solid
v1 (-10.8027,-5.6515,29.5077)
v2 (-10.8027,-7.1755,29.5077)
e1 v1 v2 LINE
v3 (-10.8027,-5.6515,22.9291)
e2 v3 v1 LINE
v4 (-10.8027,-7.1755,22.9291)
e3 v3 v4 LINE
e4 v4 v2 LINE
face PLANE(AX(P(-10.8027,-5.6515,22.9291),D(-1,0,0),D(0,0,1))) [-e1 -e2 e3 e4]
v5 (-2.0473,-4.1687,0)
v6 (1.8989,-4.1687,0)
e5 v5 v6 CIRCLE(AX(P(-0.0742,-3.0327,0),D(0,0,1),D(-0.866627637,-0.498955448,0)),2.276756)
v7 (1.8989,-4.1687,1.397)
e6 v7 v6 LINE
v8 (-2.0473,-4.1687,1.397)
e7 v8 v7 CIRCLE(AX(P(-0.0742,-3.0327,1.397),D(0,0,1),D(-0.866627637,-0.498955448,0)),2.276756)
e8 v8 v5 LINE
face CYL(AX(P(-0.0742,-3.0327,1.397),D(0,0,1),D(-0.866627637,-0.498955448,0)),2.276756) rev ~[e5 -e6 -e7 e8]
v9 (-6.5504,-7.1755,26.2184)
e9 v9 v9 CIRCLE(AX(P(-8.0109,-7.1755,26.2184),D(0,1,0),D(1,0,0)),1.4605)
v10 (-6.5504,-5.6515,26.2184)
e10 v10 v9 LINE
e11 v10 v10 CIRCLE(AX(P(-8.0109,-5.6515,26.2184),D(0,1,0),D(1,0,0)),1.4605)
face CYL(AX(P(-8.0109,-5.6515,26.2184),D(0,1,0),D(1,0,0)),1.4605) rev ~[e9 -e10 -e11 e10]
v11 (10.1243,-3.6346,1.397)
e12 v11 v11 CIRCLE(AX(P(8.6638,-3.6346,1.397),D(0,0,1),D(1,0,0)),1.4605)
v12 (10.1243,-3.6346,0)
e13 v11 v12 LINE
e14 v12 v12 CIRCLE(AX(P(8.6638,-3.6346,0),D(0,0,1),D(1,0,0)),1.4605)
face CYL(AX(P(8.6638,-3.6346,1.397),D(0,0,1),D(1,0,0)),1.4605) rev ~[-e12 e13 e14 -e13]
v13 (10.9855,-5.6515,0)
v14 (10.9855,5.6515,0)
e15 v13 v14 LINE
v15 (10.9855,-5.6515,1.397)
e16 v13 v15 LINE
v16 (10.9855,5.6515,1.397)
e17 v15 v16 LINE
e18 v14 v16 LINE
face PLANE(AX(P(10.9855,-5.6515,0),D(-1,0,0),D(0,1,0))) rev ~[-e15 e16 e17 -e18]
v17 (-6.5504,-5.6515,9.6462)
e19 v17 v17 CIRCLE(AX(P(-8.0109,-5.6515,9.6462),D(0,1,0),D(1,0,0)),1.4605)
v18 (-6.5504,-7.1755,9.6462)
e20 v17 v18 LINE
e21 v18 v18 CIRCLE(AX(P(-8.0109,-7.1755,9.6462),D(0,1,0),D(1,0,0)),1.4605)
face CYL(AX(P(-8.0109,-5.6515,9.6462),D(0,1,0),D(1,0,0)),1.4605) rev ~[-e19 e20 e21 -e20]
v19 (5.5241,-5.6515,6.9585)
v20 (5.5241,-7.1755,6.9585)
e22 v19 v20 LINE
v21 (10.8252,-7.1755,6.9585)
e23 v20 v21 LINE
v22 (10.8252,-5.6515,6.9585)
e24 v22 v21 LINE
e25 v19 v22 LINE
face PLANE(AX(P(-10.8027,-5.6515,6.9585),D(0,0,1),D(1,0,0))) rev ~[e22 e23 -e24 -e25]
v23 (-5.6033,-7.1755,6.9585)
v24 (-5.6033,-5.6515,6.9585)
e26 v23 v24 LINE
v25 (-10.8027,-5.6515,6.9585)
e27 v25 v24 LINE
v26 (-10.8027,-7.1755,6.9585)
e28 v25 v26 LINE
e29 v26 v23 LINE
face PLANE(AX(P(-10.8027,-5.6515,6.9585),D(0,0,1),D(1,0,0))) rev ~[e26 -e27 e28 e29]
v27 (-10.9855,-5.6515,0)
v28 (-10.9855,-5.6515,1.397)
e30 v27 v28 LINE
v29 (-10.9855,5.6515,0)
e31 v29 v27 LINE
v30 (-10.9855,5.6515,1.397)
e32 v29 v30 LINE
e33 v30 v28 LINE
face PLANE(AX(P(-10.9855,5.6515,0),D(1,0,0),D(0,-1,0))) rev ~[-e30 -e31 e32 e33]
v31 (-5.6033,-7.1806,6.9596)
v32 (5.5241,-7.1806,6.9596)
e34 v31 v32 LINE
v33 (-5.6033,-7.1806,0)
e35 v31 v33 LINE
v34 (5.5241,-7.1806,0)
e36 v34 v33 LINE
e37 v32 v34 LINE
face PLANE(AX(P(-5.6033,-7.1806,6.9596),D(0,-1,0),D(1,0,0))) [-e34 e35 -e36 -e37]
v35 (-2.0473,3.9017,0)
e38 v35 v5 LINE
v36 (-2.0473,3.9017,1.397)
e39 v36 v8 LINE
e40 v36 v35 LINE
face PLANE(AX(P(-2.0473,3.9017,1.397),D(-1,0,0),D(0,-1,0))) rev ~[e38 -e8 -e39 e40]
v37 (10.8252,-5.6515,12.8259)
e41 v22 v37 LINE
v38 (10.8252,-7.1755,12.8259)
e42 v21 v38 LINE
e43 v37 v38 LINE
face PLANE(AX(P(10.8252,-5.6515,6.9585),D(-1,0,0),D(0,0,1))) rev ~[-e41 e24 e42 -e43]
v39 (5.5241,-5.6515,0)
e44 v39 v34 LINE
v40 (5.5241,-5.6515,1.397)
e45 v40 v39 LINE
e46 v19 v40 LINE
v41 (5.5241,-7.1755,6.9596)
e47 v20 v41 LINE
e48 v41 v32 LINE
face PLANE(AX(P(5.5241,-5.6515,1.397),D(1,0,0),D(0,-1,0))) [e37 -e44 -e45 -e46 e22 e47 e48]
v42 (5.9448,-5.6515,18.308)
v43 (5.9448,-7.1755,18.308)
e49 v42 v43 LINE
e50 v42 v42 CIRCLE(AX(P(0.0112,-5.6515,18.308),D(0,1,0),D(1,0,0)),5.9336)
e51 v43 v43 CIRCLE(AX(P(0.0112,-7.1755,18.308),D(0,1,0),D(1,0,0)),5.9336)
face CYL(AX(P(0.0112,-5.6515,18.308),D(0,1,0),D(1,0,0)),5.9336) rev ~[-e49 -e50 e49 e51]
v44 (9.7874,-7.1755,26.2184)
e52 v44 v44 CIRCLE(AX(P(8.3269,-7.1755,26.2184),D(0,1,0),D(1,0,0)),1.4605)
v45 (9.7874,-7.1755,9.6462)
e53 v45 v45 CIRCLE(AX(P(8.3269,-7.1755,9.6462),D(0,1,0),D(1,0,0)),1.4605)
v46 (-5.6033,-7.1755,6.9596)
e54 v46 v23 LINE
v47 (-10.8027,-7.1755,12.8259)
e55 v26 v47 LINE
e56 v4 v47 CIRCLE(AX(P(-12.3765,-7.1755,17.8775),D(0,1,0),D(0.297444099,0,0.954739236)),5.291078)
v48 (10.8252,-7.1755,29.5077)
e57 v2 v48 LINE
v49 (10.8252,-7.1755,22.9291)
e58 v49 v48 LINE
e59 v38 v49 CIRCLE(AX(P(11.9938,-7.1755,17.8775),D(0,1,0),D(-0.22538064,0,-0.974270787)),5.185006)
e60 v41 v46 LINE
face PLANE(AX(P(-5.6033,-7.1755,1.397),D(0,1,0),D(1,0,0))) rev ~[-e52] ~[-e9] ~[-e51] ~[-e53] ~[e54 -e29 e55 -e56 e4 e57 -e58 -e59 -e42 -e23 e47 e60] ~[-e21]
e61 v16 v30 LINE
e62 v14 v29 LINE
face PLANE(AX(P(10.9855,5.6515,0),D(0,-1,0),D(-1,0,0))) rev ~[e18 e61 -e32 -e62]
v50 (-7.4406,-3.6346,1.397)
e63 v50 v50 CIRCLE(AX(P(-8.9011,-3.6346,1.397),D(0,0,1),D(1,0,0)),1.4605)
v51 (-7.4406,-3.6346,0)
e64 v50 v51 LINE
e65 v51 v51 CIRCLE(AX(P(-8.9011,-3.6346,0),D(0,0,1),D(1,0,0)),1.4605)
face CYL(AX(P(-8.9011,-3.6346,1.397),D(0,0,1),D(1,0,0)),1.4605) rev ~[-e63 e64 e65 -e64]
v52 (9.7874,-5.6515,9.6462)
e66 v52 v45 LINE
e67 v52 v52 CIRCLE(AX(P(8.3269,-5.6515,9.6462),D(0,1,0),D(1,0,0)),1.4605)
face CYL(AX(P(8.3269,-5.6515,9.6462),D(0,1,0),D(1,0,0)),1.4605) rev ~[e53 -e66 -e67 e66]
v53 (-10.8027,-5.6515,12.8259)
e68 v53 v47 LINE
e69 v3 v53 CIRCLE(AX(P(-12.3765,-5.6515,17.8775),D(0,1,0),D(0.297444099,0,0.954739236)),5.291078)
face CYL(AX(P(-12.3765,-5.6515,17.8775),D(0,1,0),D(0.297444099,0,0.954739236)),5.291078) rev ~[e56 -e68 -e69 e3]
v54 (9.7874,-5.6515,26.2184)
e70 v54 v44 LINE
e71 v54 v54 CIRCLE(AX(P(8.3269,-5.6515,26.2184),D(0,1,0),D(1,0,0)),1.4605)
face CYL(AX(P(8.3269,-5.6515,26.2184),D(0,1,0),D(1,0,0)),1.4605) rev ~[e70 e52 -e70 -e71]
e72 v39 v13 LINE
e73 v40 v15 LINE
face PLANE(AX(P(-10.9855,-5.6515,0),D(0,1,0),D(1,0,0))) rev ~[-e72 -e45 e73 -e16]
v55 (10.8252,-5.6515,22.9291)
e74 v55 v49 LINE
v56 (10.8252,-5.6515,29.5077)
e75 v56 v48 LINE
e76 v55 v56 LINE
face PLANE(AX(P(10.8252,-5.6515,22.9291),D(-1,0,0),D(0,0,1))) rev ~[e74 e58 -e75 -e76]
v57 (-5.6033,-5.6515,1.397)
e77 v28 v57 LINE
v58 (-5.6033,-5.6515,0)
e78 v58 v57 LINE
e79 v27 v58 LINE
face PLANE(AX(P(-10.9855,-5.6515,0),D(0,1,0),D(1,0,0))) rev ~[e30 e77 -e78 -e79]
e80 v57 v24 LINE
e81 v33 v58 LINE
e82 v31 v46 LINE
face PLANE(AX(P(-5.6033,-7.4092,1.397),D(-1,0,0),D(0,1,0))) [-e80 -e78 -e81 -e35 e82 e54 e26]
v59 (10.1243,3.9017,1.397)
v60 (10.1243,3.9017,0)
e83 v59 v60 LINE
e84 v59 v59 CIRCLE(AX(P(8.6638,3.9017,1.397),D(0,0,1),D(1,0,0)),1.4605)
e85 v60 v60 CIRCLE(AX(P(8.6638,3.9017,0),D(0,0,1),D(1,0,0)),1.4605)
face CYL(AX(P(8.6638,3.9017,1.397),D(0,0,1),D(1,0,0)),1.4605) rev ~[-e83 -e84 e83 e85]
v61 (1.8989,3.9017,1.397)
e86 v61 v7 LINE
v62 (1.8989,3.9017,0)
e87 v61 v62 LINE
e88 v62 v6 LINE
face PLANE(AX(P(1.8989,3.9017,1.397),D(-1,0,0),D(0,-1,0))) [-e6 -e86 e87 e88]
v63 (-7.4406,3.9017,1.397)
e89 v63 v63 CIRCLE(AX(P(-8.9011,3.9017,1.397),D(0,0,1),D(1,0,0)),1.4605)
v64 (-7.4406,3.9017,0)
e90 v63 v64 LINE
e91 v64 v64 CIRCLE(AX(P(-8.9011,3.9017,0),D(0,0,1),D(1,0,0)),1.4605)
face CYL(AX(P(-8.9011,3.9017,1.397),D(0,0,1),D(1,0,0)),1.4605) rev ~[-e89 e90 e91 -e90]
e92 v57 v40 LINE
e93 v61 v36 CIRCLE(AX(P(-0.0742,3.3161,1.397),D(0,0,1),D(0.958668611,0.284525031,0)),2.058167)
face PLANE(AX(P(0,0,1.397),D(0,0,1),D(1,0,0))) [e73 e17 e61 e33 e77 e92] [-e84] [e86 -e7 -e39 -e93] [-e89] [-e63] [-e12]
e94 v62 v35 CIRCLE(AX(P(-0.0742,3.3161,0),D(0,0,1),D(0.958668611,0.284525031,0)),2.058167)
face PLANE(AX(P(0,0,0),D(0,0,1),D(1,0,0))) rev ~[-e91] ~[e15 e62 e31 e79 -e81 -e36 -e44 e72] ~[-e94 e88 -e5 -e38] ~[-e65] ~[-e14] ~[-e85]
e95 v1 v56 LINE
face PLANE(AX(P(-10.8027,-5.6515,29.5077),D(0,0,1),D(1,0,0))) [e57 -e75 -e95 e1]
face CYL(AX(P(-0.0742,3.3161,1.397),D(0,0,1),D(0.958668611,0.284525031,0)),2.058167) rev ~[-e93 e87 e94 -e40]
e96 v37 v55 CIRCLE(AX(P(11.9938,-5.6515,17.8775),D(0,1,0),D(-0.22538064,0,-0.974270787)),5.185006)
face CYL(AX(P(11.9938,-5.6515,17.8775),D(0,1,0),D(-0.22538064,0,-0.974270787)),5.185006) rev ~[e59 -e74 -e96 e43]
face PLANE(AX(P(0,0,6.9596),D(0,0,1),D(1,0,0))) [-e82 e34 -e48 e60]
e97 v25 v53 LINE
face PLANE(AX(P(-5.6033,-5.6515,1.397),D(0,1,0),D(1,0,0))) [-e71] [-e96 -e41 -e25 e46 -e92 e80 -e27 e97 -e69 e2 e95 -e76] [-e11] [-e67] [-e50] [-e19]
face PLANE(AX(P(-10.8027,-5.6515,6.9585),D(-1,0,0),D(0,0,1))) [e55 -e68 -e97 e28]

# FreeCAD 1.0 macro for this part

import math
import FreeCAD as App
import Part
import Sketcher

V = App.Vector
Q = App.Units.Quantity


def add_polygon(sketch, points):
    """Adds a closed chain of lines whose ends are joined by coincident constraints."""
    first, n = sketch.GeometryCount, len(points)
    for a, b in zip(points, points[1:] + points[:1]):
        sketch.addGeometry(Part.LineSegment(App.Vector(*a, 0), App.Vector(*b, 0)), False)
    for i in range(n):
        sketch.addConstraint(Sketcher.Constraint("Coincident", first + i, 2, first + (i + 1) % n, 1))

doc = App.newDocument("Part")
body = doc.addObject("PartDesign::Body", "Body")

# Sketch on XY plane
sketch1 = body.newObject("Sketcher::SketchObject", "Sketch")
sketch1.AttachmentSupport = (doc.getObject("XY_Plane"), [""])
sketch1.MapMode = "FlatFace"
add_polygon(sketch1, [(-11, 6), (-11, -6), (11, -6), (11, 6)])  # lines 0-3
sketch1.addConstraint([
    Sketcher.Constraint("Vertical", 0),
    Sketcher.Constraint("Horizontal", 1),
    Sketcher.Constraint("Vertical", 2),
    Sketcher.Constraint("Horizontal", 3),
    Sketcher.Constraint("Symmetric", 0, 2, 2, 2, -1, 1),
    Sketcher.Constraint("DistanceX", 1, 1, 1, 2, Q("0.865 in")),
    Sketcher.Constraint("DistanceY", 0, 2, 0, 1, Q("0.445 in")),
])
pad1 = body.newObject("PartDesign::Pad", "Pad")
pad1.Profile = sketch1
pad1.Length = Q("0.055 in")

# Sketch on XY plane
sketch2 = body.newObject("Sketcher::SketchObject", "Sketch001")
sketch2.AttachmentSupport = (doc.getObject("XY_Plane"), [""])
sketch2.MapMode = "FlatFace"
sketch2.AttachmentOffset = App.Placement(V(0, 0, 0.055 * 25.4), App.Rotation())
sketch2.addGeometry([
    Part.Circle(V(-8.9, 3.9, 0), V(0, 0, 1), 1.5),  # 0
    Part.Circle(V(-8.9, -3.6, 0), V(0, 0, 1), 1.5),  # 1
    Part.Circle(V(8.7, -3.6, 0), V(0, 0, 1), 1.5),  # 2
    Part.Circle(V(8.7, 3.9, 0), V(0, 0, 1), 1.5),  # 3
    Part.ArcOfCircle(Part.Circle(V(-0.1, 3.3, 0), V(0, 0, 1), 2.1), math.radians(17), math.radians(163)),  # 4
    Part.LineSegment(V(-2, 3.9, 0), V(-2, -4.2, 0)),  # 5
    Part.ArcOfCircle(Part.Circle(V(-0.1, -3, 0), V(0, 0, 1), 2.3), math.radians(-150), math.radians(-30)),  # 6
    Part.LineSegment(V(1.9, -4.2, 0), V(1.9, 3.9, 0)),  # 7
], False)
sketch2.addConstraint([
    Sketcher.Constraint("Coincident", 4, 2, 5, 1),
    Sketcher.Constraint("Coincident", 5, 2, 6, 1),
    Sketcher.Constraint("Coincident", 6, 2, 7, 1),
    Sketcher.Constraint("Coincident", 7, 2, 4, 1),
    Sketcher.Constraint("Vertical", 5),
    Sketcher.Constraint("Vertical", 7),
    Sketcher.Constraint("Equal", 0, 1),
    Sketcher.Constraint("Equal", 1, 2),
    Sketcher.Constraint("Equal", 2, 3),
    Sketcher.Constraint("Horizontal", 1, 3, 2, 3),
    Sketcher.Constraint("Horizontal", 0, 3, 3, 3),
    Sketcher.Constraint("Horizontal", 3, 3, 4, 2),
    Sketcher.Constraint("Horizontal", 5, 2, 6, 2),
    Sketcher.Constraint("Horizontal", 4, 2, 7, 2),
    Sketcher.Constraint("Vertical", 0, 3, 1, 3),
    Sketcher.Constraint("Vertical", 2, 3, 3, 3),
    Sketcher.Constraint("Diameter", 0, Q("0.115 in")),
    Sketcher.Constraint("Radius", 4, 2.0582),
    Sketcher.Constraint("Radius", 6, 2.2768),
    Sketcher.Constraint("DistanceY", 6, 3, 3, 3, Q("0.273 in")),
    Sketcher.Constraint("DistanceY", 5, 2, 5, 1, 8.0704),
    Sketcher.Constraint("DistanceY", -1, 1, 0, 3, Q("0.1536 in")),
    Sketcher.Constraint("DistanceY", 1, 3, -1, 1, Q("0.1431 in")),
    Sketcher.Constraint("DistanceX", -1, 1, 2, 3, Q("0.3411 in")),
    Sketcher.Constraint("DistanceX", 4, 2, -1, 1, Q("0.0806 in")),
    Sketcher.Constraint("DistanceX", 0, 3, -1, 1, 8.901),
])
pocket1 = body.newObject("PartDesign::Pocket", "Pocket")
pocket1.Profile = sketch2
pocket1.Length = Q("1 in")

# Sketch on XY plane
sketch3 = body.newObject("Sketcher::SketchObject", "Sketch002")
sketch3.AttachmentSupport = (doc.getObject("XY_Plane"), [""])
sketch3.MapMode = "FlatFace"
sketch3.AttachmentOffset = App.Placement(V(0, 0, 0.055 * 25.4), App.Rotation())
add_polygon(sketch3, [(5.5, -5.7), (-5.6, -5.7), (-5.6, -7.4), (5.5, -7.4)])  # lines 0-3
sketch3.addConstraint([
    Sketcher.Constraint("Horizontal", 0),
    Sketcher.Constraint("Vertical", 1),
    Sketcher.Constraint("Horizontal", 2),
    Sketcher.Constraint("Vertical", 3),
    Sketcher.Constraint("DistanceY", 1, 2, 1, 1, Q("0.0692 in")),
    Sketcher.Constraint("DistanceX", 0, 2, 0, 1, 11.1274),
    Sketcher.Constraint("DistanceX", 0, 2, -1, 1, Q("0.2206 in")),
    Sketcher.Constraint("DistanceY", 0, 2, -1, 1, Q("0.2225 in")),
])
pad2 = body.newObject("PartDesign::Pad", "Pad001")
pad2.Profile = sketch3
pad2.Type = "TwoLengths"
pad2.Length = Q("0.219 in")
pad2.Length2 = Q("0.055 in")

# Sketch on XZ plane
sketch4 = body.newObject("Sketcher::SketchObject", "Sketch003")
sketch4.AttachmentSupport = (doc.getObject("XZ_Plane"), [""])
sketch4.MapMode = "FlatFace"
sketch4.AttachmentOffset = App.Placement(V(0, 0, 0.2225 * 25.4), App.Rotation())
sketch4.addGeometry([
    Part.LineSegment(V(10.8, 7, 0), V(-10.8, 7, 0)),  # 0
    Part.LineSegment(V(-10.8, 7, 0), V(-10.8, 12.8, 0)),  # 1
    Part.ArcOfCircle(Part.Circle(V(-12.4, 17.9, 0), V(0, 0, 1), 5.3), math.radians(-73), math.radians(73)),  # 2
    Part.LineSegment(V(-10.8, 22.9, 0), V(-10.8, 29.5, 0)),  # 3
    Part.LineSegment(V(-10.8, 29.5, 0), V(10.8, 29.5, 0)),  # 4
    Part.LineSegment(V(10.8, 29.5, 0), V(10.8, 22.9, 0)),  # 5
    Part.ArcOfCircle(Part.Circle(V(12, 17.9, 0), V(0, 0, 1), 5.2), math.radians(103), math.radians(257)),  # 6
    Part.LineSegment(V(10.8, 12.8, 0), V(10.8, 7, 0)),  # 7
    Part.Circle(V(-8, 26.2, 0), V(0, 0, 1), 1.5),  # 8
    Part.Circle(V(0, 18.3, 0), V(0, 0, 1), 5.9),  # 9
    Part.Circle(V(8.3, 26.2, 0), V(0, 0, 1), 1.5),  # 10
    Part.Circle(V(-8, 9.6, 0), V(0, 0, 1), 1.5),  # 11
    Part.Circle(V(8.3, 9.6, 0), V(0, 0, 1), 1.5),  # 12
], False)
sketch4.addConstraint([
    Sketcher.Constraint("Coincident", 0, 2, 1, 1),
    Sketcher.Constraint("Coincident", 1, 2, 2, 1),
    Sketcher.Constraint("Coincident", 2, 2, 3, 1),
    Sketcher.Constraint("Coincident", 3, 2, 4, 1),
    Sketcher.Constraint("Coincident", 4, 2, 5, 1),
    Sketcher.Constraint("Coincident", 5, 2, 6, 1),
    Sketcher.Constraint("Coincident", 6, 2, 7, 1),
    Sketcher.Constraint("Coincident", 7, 2, 0, 1),
    Sketcher.Constraint("Horizontal", 0),
    Sketcher.Constraint("Vertical", 1),
    Sketcher.Constraint("Vertical", 3),
    Sketcher.Constraint("Horizontal", 4),
    Sketcher.Constraint("Vertical", 5),
    Sketcher.Constraint("Vertical", 7),
    Sketcher.Constraint("Equal", 8, 10),
    Sketcher.Constraint("Equal", 10, 11),
    Sketcher.Constraint("Equal", 11, 12),
    Sketcher.Constraint("Horizontal", 2, 3, 6, 3),
    Sketcher.Constraint("Horizontal", 8, 3, 10, 3),
    Sketcher.Constraint("Horizontal", 11, 3, 12, 3),
    Sketcher.Constraint("Horizontal", 2, 2, 5, 2),
    Sketcher.Constraint("Horizontal", 1, 2, 6, 2),
    Sketcher.Constraint("Vertical", 8, 3, 11, 3),
    Sketcher.Constraint("Vertical", 10, 3, 12, 3),
    Sketcher.Constraint("Vertical", 1, 2, 2, 2),
    Sketcher.Constraint("Diameter", 8, Q("0.115 in")),
    Sketcher.Constraint("Radius", 2, Q("0.2083 in")),
    Sketcher.Constraint("Diameter", 9, 11.8672),
    Sketcher.Constraint("DistanceY", 1, 1, 1, 2, Q("0.231 in")),
    Sketcher.Constraint("DistanceY", 3, 1, 3, 2, Q("0.259 in")),
    Sketcher.Constraint("Radius", 6, 5.185),
    Sketcher.Constraint("DistanceX", 0, 2, 0, 1, Q("0.8515 in")),
    Sketcher.Constraint("DistanceX", 2, 3, 8, 3, Q("0.171874 in")),
    Sketcher.Constraint("DistanceX", 4, 2, 6, 3, Q("0.046 in")),
    Sketcher.Constraint("DistanceX", -1, 1, 6, 3, Q("0.4722 in")),
    Sketcher.Constraint("DistanceX", 2, 3, 9, 3, Q("0.4877 in")),
    Sketcher.Constraint("DistanceX", 9, 3, 10, 3, Q("0.3274 in")),
    Sketcher.Constraint("DistanceY", 2, 2, 8, 3, Q("0.1295 in")),
    Sketcher.Constraint("DistanceY", -1, 1, 2, 3, 17.8775),
    Sketcher.Constraint("DistanceY", -1, 1, 9, 3, 18.308),
    Sketcher.Constraint("DistanceY", -1, 1, 11, 3, 9.6462),
])
pad3 = body.newObject("PartDesign::Pad", "Pad002")
pad3.Profile = sketch4
pad3.Length = Q("0.06 in")

# Sketch on XZ plane
sketch5 = body.newObject("Sketcher::SketchObject", "Sketch004")
sketch5.AttachmentSupport = (doc.getObject("XZ_Plane"), [""])
sketch5.MapMode = "FlatFace"
sketch5.AttachmentOffset = App.Placement(V(0, 0, 0.2917008 * 25.4), App.Rotation())
add_polygon(sketch5, [(6, 0), (6, 7), (-6, 7), (-6, 0)])  # lines 0-3
sketch5.addConstraint([
    Sketcher.Constraint("Vertical", 0),
    Sketcher.Constraint("Horizontal", 1),
    Sketcher.Constraint("Vertical", 2),
    Sketcher.Constraint("Horizontal", 3),
    Sketcher.Constraint("PointOnObject", 2, 2, -1),
    Sketcher.Constraint("DistanceY", 0, 1, 0, 2, Q("0.274 in")),
    Sketcher.Constraint("DistanceX", 1, 2, 1, 1, 11.1274),
    Sketcher.Constraint("DistanceX", 1, 2, -1, 1, Q("0.2206 in")),
])
pocket2 = body.newObject("PartDesign::Pocket", "Pocket001")
pocket2.Profile = sketch5
pocket2.Length = Q("0.009 in")

doc.recompute()
